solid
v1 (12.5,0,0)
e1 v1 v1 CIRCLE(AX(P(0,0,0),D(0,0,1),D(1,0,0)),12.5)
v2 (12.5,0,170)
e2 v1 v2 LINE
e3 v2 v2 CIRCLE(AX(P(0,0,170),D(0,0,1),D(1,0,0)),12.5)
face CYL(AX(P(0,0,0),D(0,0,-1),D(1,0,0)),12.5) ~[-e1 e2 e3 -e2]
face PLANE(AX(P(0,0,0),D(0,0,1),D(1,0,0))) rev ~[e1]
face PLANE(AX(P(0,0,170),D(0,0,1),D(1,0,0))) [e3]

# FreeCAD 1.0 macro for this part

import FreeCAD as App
import Part
import Sketcher

doc = App.newDocument("Part")
params = doc.addObject("Spreadsheet::Sheet", "Params")
for row, (alias, value) in enumerate([
    ("sketch1_diameter", "25 mm"),
    ("pad1_length", "170 mm"),
], start=1):
    params.set(f"A{row}", alias)
    params.set(f"B{row}", "=" + value)
    params.setAlias(f"B{row}", alias)

body = doc.addObject("PartDesign::Body", "Body")

# Sketch on XY plane
sketch1 = body.newObject("Sketcher::SketchObject", "Sketch")
sketch1.AttachmentSupport = (doc.getObject("XY_Plane"), [""])
sketch1.MapMode = "FlatFace"
sketch1.addGeometry(Part.Circle(App.Vector(0, 0, 0), App.Vector(0, 0, 1), 12.5), False)
sketch1.addConstraint(Sketcher.Constraint("Coincident", 0, 3, -1, 1))
sketch1.addConstraint(Sketcher.Constraint("Diameter", 0, 25.0))
sketch1.setExpression("Constraints[1]", "Params.sketch1_diameter")
pad1 = body.newObject("PartDesign::Pad", "Pad")
pad1.Profile = sketch1
pad1.setExpression("Length", "Params.pad1_length")

doc.recompute()
